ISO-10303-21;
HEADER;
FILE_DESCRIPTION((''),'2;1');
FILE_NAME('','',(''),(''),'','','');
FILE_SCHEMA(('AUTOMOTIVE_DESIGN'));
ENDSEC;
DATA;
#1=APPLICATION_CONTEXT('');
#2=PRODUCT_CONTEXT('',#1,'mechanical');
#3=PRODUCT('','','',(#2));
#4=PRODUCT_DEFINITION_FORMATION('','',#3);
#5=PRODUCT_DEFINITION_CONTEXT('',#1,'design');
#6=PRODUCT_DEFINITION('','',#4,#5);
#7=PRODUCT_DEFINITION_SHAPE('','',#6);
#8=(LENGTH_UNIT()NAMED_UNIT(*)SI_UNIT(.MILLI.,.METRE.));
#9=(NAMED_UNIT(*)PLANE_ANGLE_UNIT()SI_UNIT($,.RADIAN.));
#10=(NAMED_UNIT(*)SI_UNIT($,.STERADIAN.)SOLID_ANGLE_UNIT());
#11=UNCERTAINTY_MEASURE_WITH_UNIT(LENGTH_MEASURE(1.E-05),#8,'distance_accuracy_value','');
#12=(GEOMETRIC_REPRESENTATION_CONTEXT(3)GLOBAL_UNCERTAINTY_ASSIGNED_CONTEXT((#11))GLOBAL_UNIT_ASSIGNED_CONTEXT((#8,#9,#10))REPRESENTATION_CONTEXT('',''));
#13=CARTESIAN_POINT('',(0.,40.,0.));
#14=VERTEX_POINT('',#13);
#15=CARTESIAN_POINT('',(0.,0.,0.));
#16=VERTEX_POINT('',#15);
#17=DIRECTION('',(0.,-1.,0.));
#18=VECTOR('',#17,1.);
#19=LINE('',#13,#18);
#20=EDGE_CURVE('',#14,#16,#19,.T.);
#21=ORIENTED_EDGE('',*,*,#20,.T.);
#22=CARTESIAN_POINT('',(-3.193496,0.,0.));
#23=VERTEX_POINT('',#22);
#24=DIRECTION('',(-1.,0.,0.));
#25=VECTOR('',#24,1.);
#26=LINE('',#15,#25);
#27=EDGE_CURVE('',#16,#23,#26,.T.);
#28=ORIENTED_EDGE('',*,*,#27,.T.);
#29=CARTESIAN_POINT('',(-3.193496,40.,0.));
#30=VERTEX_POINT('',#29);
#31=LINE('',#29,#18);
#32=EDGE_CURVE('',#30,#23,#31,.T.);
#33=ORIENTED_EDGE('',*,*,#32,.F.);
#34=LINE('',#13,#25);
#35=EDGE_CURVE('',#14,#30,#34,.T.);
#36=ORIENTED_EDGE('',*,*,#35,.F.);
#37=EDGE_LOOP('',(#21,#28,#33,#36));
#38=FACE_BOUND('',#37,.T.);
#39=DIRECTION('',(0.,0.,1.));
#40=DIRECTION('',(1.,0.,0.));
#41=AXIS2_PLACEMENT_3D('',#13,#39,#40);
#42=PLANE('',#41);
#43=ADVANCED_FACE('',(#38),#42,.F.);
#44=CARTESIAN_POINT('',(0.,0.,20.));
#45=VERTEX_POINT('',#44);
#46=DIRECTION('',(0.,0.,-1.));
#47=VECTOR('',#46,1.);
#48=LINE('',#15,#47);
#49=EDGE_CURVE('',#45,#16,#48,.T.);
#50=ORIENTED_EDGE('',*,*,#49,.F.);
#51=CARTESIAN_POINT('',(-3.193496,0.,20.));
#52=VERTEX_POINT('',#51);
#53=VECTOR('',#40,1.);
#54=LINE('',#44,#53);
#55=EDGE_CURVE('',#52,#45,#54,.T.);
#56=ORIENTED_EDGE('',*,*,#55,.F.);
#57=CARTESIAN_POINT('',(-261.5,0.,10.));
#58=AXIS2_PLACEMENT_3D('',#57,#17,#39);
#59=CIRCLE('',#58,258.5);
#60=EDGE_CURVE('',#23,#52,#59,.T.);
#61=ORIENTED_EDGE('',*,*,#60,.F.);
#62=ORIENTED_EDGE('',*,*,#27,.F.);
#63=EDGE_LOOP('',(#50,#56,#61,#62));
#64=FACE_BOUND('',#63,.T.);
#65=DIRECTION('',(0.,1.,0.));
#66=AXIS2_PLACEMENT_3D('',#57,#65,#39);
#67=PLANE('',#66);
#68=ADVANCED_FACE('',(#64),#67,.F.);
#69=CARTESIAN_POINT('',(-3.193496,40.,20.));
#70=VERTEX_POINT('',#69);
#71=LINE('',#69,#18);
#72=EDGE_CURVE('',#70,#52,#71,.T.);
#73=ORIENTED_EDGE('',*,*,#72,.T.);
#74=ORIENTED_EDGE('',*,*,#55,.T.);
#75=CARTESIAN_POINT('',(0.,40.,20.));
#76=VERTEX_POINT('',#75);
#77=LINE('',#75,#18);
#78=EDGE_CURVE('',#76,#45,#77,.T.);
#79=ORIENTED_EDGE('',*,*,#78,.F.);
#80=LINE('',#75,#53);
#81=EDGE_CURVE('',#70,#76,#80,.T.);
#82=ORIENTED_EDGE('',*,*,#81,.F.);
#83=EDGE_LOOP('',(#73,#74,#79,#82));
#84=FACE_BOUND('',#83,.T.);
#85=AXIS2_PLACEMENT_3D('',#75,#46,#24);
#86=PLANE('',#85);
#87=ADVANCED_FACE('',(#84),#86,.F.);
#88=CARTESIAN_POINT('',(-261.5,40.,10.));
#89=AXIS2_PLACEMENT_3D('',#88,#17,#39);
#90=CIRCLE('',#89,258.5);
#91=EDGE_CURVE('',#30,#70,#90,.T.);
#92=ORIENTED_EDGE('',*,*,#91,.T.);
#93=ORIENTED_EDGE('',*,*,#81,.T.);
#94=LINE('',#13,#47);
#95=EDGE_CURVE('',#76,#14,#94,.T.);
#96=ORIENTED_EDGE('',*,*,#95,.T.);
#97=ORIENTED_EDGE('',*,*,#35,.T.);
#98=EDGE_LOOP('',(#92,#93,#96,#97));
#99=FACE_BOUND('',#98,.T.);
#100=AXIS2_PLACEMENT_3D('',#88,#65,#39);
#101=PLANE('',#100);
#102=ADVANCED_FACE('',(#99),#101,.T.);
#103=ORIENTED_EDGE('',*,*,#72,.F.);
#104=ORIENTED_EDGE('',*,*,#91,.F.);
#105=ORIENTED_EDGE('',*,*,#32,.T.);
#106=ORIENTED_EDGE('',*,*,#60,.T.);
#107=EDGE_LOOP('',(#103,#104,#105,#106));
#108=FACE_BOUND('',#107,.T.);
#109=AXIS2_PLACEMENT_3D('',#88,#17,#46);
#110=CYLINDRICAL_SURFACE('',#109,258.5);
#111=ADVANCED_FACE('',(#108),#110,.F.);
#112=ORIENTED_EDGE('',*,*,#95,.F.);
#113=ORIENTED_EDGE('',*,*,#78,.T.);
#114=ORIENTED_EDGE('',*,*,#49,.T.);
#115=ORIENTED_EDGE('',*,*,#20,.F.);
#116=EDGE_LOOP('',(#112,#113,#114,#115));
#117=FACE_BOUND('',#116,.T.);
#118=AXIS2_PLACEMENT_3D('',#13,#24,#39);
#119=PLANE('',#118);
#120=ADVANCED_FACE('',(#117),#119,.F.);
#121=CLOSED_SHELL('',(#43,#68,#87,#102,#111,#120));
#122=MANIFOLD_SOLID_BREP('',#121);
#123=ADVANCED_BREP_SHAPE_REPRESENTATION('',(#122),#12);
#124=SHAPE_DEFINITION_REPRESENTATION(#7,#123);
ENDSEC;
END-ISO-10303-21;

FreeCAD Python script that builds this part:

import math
import FreeCAD as App
import Part
import Sketcher

V = App.Vector

doc = App.newDocument("Part")
params = doc.addObject("Spreadsheet::Sheet", "Params")
for row, (alias, value) in enumerate([
    ("sketch1_radius", "258.5 mm"),
    ("sketch1_height", "20 mm"),
    ("pad1_length", "40 mm"),
], start=1):
    params.set(f"A{row}", alias)
    params.set(f"B{row}", "=" + value)
    params.setAlias(f"B{row}", alias)

body = doc.addObject("PartDesign::Body", "Body")

# Sketch on XZ plane
sketch1 = doc.addObject("Sketcher::SketchObject", "Sketch")
body.addObject(sketch1)
sketch1.AttachmentSupport = (doc.XZ_Plane, [""])
sketch1.MapMode = "FlatFace"
sketch1.addGeometry(Part.LineSegment(V(0, 20, 0), V(0, 0, 0)), False)
sketch1.addGeometry(Part.LineSegment(V(0, 0, 0), V(-3.2, 0, 0)), False)
sketch1.addGeometry(Part.ArcOfCircle(Part.Circle(V(-261.5, 10, 0), V(0, 0, 1), 258.5), math.radians(-2.22), math.radians(2.22)), False)
sketch1.addGeometry(Part.LineSegment(V(-3.2, 20, 0), V(0, 20, 0)), False)
sketch1.addConstraint(Sketcher.Constraint("Coincident", 0, 2, 1, 1))
sketch1.addConstraint(Sketcher.Constraint("Coincident", 1, 2, 2, 1))
sketch1.addConstraint(Sketcher.Constraint("Coincident", 2, 2, 3, 1))
sketch1.addConstraint(Sketcher.Constraint("Coincident", 3, 2, 0, 1))
sketch1.addConstraint(Sketcher.Constraint("Vertical", 0))
sketch1.addConstraint(Sketcher.Constraint("Horizontal", 1))
sketch1.addConstraint(Sketcher.Constraint("Horizontal", 3))
sketch1.addConstraint(Sketcher.Constraint("Coincident", 0, 2, -1, 1))
sketch1.addConstraint(Sketcher.Constraint("Vertical", 1, 2, 2, 2))
sketch1.addConstraint(Sketcher.Constraint("Radius", 2, 258.5))
sketch1.addConstraint(Sketcher.Constraint("DistanceY", 0, 2, 0, 1, 20.0))
sketch1.addConstraint(Sketcher.Constraint("DistanceX", 2, 3, -1, 1, 261.5))
sketch1.setExpression("Constraints[9]", "Params.sketch1_radius")
sketch1.setExpression("Constraints[10]", "Params.sketch1_height")
pad1 = doc.addObject("PartDesign::Pad", "Pad")
body.addObject(pad1)
pad1.Profile = sketch1
pad1.setExpression("Length", "Params.pad1_length")
pad1.Reversed = True

doc.recompute()
